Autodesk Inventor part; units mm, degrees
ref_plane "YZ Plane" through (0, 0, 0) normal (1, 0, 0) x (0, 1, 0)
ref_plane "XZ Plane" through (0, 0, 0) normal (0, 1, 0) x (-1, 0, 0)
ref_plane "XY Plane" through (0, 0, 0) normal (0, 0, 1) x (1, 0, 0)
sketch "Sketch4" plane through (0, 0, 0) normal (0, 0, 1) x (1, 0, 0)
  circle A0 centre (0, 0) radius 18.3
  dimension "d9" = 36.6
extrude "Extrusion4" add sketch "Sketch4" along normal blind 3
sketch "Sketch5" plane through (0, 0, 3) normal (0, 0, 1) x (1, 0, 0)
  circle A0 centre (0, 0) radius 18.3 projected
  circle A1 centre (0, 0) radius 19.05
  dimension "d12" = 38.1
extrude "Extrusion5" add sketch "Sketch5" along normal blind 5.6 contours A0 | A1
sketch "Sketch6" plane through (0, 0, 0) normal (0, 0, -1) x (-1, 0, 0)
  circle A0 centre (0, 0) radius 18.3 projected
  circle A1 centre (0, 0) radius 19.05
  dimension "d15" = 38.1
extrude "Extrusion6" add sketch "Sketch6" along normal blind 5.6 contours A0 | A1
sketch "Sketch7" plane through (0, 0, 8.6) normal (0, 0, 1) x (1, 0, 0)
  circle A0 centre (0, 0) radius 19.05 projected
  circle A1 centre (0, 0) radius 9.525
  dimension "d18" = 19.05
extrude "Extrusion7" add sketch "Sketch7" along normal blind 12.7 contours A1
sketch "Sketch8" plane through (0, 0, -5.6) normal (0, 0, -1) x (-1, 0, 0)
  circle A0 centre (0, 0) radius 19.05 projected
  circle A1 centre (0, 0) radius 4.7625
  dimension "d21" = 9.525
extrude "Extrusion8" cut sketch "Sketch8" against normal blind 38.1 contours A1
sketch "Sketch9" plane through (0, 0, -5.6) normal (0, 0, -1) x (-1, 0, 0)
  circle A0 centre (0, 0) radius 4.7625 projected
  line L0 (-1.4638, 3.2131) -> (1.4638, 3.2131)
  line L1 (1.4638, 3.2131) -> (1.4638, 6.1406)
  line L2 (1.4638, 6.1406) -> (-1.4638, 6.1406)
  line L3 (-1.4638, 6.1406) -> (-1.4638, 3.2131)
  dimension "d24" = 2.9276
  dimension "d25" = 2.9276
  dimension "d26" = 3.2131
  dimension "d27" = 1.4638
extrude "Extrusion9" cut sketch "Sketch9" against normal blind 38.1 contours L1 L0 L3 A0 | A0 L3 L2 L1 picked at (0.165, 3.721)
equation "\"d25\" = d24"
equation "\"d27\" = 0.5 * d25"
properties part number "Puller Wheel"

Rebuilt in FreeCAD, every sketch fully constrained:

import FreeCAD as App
import Part
import Sketcher
Q = App.Units.Quantity


def add_polygon(sketch, points):
    """Adds a closed chain of lines whose ends are joined by coincident constraints."""
    first, n = sketch.GeometryCount, len(points)
    for a, b in zip(points, points[1:] + points[:1]):
        sketch.addGeometry(Part.LineSegment(App.Vector(*a, 0), App.Vector(*b, 0)), False)
    for i in range(n):
        sketch.addConstraint(Sketcher.Constraint("Coincident", first + i, 2, first + (i + 1) % n, 1))

doc = App.newDocument("Part")
body = doc.addObject("PartDesign::Body", "Body")

# Sketch on XY plane
sketch1 = body.newObject("Sketcher::SketchObject", "Sketch")
sketch1.AttachmentSupport = (doc.getObject("XY_Plane"), [""])
sketch1.MapMode = "FlatFace"
sketch1.addGeometry(Part.Circle(App.Vector(0, 0, 0), App.Vector(0, 0, 1), 18), False)
sketch1.addConstraint(Sketcher.Constraint("Coincident", 0, 3, -1, 1))
sketch1.addConstraint(Sketcher.Constraint("Diameter", 0, Q("36.6 mm")))
pad1 = body.newObject("PartDesign::Pad", "Pad")
pad1.Profile = sketch1
pad1.Length = Q("0.1181102 in")

# Sketch on XY plane
sketch2 = body.newObject("Sketcher::SketchObject", "Sketch001")
sketch2.AttachmentSupport = (doc.getObject("XY_Plane"), [""])
sketch2.MapMode = "FlatFace"
sketch2.AttachmentOffset = App.Placement(App.Vector(0, 0, 0.1181102 * 25.4), App.Rotation())
sketch2.addGeometry(Part.Circle(App.Vector(0, 0, 0), App.Vector(0, 0, 1), 19), False)
sketch2.addConstraint(Sketcher.Constraint("Coincident", 0, 3, -1, 1))
sketch2.addConstraint(Sketcher.Constraint("Diameter", 0, Q("1.5 in")))
pad2 = body.newObject("PartDesign::Pad", "Pad001")
pad2.Profile = sketch2
pad2.Length = 5.6

# Sketch on XY plane
sketch3 = body.newObject("Sketcher::SketchObject", "Sketch002")
sketch3.AttachmentSupport = (doc.getObject("XY_Plane"), [""])
sketch3.MapMode = "FlatFace"
sketch3.addGeometry(Part.Circle(App.Vector(0, 0, 0), App.Vector(0, 0, 1), 19), False)
sketch3.addConstraint(Sketcher.Constraint("Coincident", 0, 3, -1, 1))
sketch3.addConstraint(Sketcher.Constraint("Diameter", 0, Q("1.5 in")))
pad3 = body.newObject("PartDesign::Pad", "Pad002")
pad3.Profile = sketch3
pad3.Length = 5.6
pad3.Reversed = True

# Sketch on XY plane
sketch4 = body.newObject("Sketcher::SketchObject", "Sketch003")
sketch4.AttachmentSupport = (doc.getObject("XY_Plane"), [""])
sketch4.MapMode = "FlatFace"
sketch4.AttachmentOffset = App.Placement(App.Vector(0, 0, 8.6), App.Rotation())
sketch4.addGeometry(Part.Circle(App.Vector(0, 0, 0), App.Vector(0, 0, 1), 10), False)
sketch4.addConstraint(Sketcher.Constraint("Coincident", 0, 3, -1, 1))
sketch4.addConstraint(Sketcher.Constraint("Diameter", 0, Q("0.75 in")))
pad4 = body.newObject("PartDesign::Pad", "Pad003")
pad4.Profile = sketch4
pad4.Length = Q("0.5 in")

# Sketch on XY plane
sketch5 = body.newObject("Sketcher::SketchObject", "Sketch004")
sketch5.AttachmentSupport = (doc.getObject("XY_Plane"), [""])
sketch5.MapMode = "FlatFace"
sketch5.AttachmentOffset = App.Placement(App.Vector(0, 0, -5.6), App.Rotation())
sketch5.addGeometry(Part.Circle(App.Vector(0, 0, 0), App.Vector(0, 0, 1), 4.8), False)
sketch5.addConstraint(Sketcher.Constraint("Coincident", 0, 3, -1, 1))
sketch5.addConstraint(Sketcher.Constraint("Diameter", 0, Q("0.375 in")))
pocket1 = body.newObject("PartDesign::Pocket", "Pocket")
pocket1.Profile = sketch5
pocket1.Length = Q("1.5 in")
pocket1.Reversed = True

# Sketch on XY plane
sketch6 = body.newObject("Sketcher::SketchObject", "Sketch005")
sketch6.AttachmentSupport = (doc.getObject("XY_Plane"), [""])
sketch6.MapMode = "FlatFace"
sketch6.AttachmentOffset = App.Placement(App.Vector(0, 0, -5.6), App.Rotation())
add_polygon(sketch6, [(-1.5, 3.2), (-1.5, 6.1), (1.5, 6.1), (1.5, 3.2)])  # lines 0-3
sketch6.addConstraint(Sketcher.Constraint("Vertical", 0))
sketch6.addConstraint(Sketcher.Constraint("Horizontal", 1))
sketch6.addConstraint(Sketcher.Constraint("Vertical", 2))
sketch6.addConstraint(Sketcher.Constraint("Horizontal", 3))
sketch6.addConstraint(Sketcher.Constraint("Equal", 3, 0))
sketch6.addConstraint(Sketcher.Constraint("DistanceX", 1, 1, 1, 2, Q("2.9276 mm")))
sketch6.addConstraint(Sketcher.Constraint("DistanceY", -1, 1, 2, 2, Q("0.1265 in")))
sketch6.addConstraint(Sketcher.Constraint("DistanceX", 0, 2, -1, 1, Q("1.4638 mm")))
pocket2 = body.newObject("PartDesign::Pocket", "Pocket001")
pocket2.Profile = sketch6
pocket2.Length = Q("1.5 in")
pocket2.Reversed = True

doc.recompute()
